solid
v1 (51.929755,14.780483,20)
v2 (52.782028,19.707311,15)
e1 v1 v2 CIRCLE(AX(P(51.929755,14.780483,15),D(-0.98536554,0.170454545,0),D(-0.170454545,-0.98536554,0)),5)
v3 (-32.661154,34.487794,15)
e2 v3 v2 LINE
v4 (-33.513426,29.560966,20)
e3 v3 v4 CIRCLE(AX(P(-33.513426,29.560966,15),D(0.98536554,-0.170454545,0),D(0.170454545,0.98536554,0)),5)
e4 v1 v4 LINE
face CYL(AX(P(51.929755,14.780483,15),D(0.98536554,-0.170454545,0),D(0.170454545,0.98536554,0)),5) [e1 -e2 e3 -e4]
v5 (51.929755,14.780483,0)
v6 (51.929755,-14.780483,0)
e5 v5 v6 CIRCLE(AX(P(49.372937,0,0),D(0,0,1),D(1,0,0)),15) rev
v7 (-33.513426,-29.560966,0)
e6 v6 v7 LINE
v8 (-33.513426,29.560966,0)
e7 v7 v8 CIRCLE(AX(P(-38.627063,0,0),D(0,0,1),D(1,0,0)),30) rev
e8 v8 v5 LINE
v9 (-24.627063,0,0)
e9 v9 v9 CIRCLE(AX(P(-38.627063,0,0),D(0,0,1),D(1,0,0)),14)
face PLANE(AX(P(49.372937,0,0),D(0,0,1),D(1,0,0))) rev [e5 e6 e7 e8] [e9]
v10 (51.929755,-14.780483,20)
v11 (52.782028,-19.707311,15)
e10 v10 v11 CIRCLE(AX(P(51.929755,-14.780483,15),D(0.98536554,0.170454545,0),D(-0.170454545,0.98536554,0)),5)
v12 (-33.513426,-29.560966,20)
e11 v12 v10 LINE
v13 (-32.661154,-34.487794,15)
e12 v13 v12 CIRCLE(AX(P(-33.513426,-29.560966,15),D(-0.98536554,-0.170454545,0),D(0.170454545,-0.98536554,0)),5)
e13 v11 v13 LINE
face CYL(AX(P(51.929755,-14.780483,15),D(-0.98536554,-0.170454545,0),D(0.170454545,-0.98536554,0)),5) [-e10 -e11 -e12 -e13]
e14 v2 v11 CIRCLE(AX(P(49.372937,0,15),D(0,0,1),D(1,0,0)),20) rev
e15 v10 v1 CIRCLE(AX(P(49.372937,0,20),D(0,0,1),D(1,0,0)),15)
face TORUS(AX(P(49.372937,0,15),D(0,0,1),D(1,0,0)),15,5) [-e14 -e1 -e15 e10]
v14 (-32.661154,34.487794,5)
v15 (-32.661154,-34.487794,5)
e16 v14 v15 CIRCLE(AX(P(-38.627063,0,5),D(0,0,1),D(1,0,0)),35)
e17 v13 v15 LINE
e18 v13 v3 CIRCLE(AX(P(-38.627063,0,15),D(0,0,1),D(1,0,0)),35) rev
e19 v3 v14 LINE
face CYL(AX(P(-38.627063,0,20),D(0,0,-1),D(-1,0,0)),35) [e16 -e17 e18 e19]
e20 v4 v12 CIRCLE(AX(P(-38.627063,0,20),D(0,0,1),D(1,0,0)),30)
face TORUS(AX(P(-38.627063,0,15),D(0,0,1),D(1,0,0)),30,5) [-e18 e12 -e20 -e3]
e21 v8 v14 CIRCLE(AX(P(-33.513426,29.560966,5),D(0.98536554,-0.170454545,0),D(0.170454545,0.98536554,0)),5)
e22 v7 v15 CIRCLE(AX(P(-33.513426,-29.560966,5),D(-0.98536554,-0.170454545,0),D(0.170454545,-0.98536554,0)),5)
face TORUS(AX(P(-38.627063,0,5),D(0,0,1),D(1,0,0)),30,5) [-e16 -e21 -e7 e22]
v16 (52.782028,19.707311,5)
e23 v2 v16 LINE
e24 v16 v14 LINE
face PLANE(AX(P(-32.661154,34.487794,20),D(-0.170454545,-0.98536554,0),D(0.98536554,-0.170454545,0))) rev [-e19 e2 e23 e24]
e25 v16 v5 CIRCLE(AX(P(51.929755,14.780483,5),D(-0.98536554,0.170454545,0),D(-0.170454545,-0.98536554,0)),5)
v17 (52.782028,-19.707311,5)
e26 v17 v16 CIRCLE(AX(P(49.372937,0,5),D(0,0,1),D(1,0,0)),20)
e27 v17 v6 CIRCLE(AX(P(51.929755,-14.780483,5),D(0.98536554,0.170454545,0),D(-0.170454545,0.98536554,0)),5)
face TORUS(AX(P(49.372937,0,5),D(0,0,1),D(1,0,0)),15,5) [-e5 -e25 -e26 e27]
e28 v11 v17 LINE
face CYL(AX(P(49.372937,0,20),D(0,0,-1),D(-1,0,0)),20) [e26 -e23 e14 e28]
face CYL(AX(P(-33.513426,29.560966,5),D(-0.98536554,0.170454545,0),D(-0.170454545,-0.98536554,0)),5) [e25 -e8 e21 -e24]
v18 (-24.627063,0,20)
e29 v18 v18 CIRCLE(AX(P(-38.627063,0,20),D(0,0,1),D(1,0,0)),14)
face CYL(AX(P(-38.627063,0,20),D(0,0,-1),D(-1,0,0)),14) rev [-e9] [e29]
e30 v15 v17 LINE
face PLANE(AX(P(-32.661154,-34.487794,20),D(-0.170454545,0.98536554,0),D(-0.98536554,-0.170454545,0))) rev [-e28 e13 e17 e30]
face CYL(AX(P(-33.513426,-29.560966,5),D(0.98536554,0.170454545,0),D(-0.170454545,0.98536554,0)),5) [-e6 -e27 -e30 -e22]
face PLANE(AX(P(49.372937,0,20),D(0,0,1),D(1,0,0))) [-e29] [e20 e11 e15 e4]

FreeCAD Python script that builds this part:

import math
import FreeCAD as App
import Part
import Sketcher
Q = App.Units.Quantity


def edges_at(feature, points):
    """Names of the edges that pass closest to the given points."""
    edges = feature.Shape.Edges
    near = lambda p: min(range(len(edges)), key=lambda i: edges[i].distToShape(Part.Vertex(*p))[0])
    return sorted({f"Edge{near(p) + 1}" for p in points})

doc = App.newDocument("Part")
body = doc.addObject("PartDesign::Body", "Body")

# Sketch on XY plane
sketch1 = doc.addObject("Sketcher::SketchObject", "Sketch")
body.addObject(sketch1)
sketch1.AttachmentSupport = (doc.XY_Plane, [""])
sketch1.MapMode = "FlatFace"
sketch1.addGeometry(Part.LineSegment(App.Vector(53, 20, 0), App.Vector(-33, 34, 0)), False)
sketch1.addGeometry(Part.ArcOfCircle(Part.Circle(App.Vector(-39, 0, 0), App.Vector(0, 0, 1), 35), math.radians(80), math.radians(280)), False)
sketch1.addGeometry(Part.LineSegment(App.Vector(-33, -34, 0), App.Vector(53, -20, 0)), False)
sketch1.addGeometry(Part.ArcOfCircle(Part.Circle(App.Vector(49, 0, 0), App.Vector(0, 0, 1), 20), math.radians(-80), math.radians(80)), False)
sketch1.addGeometry(Part.Circle(App.Vector(-39, 0, 0), App.Vector(0, 0, 1), 14), False)
sketch1.addConstraint(Sketcher.Constraint("Tangent", 0, 2, 1, 1))
sketch1.addConstraint(Sketcher.Constraint("Tangent", 1, 2, 2, 1))
sketch1.addConstraint(Sketcher.Constraint("Tangent", 2, 2, 3, 1))
sketch1.addConstraint(Sketcher.Constraint("Tangent", 3, 2, 0, 1))
sketch1.addConstraint(Sketcher.Constraint("Coincident", 4, 3, 1, 3))
sketch1.addConstraint(Sketcher.Constraint("Symmetric", 0, 2, 1, 2, -1))
sketch1.addConstraint(Sketcher.Constraint("Diameter", 4, Q("28 mm")))
sketch1.addConstraint(Sketcher.Constraint("Radius", 1, Q("35 mm")))
sketch1.addConstraint(Sketcher.Constraint("Radius", 3, Q("20 mm")))
sketch1.addConstraint(Sketcher.Constraint("DistanceX", 1, 3, 3, 3, Q("88 mm")))
sketch1.addConstraint(Sketcher.Constraint("DistanceX", -1, 1, 2, 2, Q("52.782028 mm")))
pad1 = doc.addObject("PartDesign::Pad", "Pad")
body.addObject(pad1)
pad1.Profile = sketch1
pad1.Length = 20
doc.recompute()

fillet = doc.addObject("PartDesign::Fillet", "Fillet")
body.addObject(fillet)
fillet.Base = (pad1, edges_at(pad1, [
    (-73.627, 0, 20),
    (10.06, -27.098, 20),
    (69.373, 0, 20),
    (10.06, 27.098, 20),
]))
fillet.Radius = 5
doc.recompute()

fillet2 = doc.addObject("PartDesign::Fillet", "Fillet001")
body.addObject(fillet2)
fillet2.Base = (fillet, edges_at(fillet, [
    (10.06, -27.098, 0),
    (-73.627, 0, 0),
    (10.06, 27.098, 0),
    (69.373, 0, 0),
]))
fillet2.Radius = 5

doc.recompute()
